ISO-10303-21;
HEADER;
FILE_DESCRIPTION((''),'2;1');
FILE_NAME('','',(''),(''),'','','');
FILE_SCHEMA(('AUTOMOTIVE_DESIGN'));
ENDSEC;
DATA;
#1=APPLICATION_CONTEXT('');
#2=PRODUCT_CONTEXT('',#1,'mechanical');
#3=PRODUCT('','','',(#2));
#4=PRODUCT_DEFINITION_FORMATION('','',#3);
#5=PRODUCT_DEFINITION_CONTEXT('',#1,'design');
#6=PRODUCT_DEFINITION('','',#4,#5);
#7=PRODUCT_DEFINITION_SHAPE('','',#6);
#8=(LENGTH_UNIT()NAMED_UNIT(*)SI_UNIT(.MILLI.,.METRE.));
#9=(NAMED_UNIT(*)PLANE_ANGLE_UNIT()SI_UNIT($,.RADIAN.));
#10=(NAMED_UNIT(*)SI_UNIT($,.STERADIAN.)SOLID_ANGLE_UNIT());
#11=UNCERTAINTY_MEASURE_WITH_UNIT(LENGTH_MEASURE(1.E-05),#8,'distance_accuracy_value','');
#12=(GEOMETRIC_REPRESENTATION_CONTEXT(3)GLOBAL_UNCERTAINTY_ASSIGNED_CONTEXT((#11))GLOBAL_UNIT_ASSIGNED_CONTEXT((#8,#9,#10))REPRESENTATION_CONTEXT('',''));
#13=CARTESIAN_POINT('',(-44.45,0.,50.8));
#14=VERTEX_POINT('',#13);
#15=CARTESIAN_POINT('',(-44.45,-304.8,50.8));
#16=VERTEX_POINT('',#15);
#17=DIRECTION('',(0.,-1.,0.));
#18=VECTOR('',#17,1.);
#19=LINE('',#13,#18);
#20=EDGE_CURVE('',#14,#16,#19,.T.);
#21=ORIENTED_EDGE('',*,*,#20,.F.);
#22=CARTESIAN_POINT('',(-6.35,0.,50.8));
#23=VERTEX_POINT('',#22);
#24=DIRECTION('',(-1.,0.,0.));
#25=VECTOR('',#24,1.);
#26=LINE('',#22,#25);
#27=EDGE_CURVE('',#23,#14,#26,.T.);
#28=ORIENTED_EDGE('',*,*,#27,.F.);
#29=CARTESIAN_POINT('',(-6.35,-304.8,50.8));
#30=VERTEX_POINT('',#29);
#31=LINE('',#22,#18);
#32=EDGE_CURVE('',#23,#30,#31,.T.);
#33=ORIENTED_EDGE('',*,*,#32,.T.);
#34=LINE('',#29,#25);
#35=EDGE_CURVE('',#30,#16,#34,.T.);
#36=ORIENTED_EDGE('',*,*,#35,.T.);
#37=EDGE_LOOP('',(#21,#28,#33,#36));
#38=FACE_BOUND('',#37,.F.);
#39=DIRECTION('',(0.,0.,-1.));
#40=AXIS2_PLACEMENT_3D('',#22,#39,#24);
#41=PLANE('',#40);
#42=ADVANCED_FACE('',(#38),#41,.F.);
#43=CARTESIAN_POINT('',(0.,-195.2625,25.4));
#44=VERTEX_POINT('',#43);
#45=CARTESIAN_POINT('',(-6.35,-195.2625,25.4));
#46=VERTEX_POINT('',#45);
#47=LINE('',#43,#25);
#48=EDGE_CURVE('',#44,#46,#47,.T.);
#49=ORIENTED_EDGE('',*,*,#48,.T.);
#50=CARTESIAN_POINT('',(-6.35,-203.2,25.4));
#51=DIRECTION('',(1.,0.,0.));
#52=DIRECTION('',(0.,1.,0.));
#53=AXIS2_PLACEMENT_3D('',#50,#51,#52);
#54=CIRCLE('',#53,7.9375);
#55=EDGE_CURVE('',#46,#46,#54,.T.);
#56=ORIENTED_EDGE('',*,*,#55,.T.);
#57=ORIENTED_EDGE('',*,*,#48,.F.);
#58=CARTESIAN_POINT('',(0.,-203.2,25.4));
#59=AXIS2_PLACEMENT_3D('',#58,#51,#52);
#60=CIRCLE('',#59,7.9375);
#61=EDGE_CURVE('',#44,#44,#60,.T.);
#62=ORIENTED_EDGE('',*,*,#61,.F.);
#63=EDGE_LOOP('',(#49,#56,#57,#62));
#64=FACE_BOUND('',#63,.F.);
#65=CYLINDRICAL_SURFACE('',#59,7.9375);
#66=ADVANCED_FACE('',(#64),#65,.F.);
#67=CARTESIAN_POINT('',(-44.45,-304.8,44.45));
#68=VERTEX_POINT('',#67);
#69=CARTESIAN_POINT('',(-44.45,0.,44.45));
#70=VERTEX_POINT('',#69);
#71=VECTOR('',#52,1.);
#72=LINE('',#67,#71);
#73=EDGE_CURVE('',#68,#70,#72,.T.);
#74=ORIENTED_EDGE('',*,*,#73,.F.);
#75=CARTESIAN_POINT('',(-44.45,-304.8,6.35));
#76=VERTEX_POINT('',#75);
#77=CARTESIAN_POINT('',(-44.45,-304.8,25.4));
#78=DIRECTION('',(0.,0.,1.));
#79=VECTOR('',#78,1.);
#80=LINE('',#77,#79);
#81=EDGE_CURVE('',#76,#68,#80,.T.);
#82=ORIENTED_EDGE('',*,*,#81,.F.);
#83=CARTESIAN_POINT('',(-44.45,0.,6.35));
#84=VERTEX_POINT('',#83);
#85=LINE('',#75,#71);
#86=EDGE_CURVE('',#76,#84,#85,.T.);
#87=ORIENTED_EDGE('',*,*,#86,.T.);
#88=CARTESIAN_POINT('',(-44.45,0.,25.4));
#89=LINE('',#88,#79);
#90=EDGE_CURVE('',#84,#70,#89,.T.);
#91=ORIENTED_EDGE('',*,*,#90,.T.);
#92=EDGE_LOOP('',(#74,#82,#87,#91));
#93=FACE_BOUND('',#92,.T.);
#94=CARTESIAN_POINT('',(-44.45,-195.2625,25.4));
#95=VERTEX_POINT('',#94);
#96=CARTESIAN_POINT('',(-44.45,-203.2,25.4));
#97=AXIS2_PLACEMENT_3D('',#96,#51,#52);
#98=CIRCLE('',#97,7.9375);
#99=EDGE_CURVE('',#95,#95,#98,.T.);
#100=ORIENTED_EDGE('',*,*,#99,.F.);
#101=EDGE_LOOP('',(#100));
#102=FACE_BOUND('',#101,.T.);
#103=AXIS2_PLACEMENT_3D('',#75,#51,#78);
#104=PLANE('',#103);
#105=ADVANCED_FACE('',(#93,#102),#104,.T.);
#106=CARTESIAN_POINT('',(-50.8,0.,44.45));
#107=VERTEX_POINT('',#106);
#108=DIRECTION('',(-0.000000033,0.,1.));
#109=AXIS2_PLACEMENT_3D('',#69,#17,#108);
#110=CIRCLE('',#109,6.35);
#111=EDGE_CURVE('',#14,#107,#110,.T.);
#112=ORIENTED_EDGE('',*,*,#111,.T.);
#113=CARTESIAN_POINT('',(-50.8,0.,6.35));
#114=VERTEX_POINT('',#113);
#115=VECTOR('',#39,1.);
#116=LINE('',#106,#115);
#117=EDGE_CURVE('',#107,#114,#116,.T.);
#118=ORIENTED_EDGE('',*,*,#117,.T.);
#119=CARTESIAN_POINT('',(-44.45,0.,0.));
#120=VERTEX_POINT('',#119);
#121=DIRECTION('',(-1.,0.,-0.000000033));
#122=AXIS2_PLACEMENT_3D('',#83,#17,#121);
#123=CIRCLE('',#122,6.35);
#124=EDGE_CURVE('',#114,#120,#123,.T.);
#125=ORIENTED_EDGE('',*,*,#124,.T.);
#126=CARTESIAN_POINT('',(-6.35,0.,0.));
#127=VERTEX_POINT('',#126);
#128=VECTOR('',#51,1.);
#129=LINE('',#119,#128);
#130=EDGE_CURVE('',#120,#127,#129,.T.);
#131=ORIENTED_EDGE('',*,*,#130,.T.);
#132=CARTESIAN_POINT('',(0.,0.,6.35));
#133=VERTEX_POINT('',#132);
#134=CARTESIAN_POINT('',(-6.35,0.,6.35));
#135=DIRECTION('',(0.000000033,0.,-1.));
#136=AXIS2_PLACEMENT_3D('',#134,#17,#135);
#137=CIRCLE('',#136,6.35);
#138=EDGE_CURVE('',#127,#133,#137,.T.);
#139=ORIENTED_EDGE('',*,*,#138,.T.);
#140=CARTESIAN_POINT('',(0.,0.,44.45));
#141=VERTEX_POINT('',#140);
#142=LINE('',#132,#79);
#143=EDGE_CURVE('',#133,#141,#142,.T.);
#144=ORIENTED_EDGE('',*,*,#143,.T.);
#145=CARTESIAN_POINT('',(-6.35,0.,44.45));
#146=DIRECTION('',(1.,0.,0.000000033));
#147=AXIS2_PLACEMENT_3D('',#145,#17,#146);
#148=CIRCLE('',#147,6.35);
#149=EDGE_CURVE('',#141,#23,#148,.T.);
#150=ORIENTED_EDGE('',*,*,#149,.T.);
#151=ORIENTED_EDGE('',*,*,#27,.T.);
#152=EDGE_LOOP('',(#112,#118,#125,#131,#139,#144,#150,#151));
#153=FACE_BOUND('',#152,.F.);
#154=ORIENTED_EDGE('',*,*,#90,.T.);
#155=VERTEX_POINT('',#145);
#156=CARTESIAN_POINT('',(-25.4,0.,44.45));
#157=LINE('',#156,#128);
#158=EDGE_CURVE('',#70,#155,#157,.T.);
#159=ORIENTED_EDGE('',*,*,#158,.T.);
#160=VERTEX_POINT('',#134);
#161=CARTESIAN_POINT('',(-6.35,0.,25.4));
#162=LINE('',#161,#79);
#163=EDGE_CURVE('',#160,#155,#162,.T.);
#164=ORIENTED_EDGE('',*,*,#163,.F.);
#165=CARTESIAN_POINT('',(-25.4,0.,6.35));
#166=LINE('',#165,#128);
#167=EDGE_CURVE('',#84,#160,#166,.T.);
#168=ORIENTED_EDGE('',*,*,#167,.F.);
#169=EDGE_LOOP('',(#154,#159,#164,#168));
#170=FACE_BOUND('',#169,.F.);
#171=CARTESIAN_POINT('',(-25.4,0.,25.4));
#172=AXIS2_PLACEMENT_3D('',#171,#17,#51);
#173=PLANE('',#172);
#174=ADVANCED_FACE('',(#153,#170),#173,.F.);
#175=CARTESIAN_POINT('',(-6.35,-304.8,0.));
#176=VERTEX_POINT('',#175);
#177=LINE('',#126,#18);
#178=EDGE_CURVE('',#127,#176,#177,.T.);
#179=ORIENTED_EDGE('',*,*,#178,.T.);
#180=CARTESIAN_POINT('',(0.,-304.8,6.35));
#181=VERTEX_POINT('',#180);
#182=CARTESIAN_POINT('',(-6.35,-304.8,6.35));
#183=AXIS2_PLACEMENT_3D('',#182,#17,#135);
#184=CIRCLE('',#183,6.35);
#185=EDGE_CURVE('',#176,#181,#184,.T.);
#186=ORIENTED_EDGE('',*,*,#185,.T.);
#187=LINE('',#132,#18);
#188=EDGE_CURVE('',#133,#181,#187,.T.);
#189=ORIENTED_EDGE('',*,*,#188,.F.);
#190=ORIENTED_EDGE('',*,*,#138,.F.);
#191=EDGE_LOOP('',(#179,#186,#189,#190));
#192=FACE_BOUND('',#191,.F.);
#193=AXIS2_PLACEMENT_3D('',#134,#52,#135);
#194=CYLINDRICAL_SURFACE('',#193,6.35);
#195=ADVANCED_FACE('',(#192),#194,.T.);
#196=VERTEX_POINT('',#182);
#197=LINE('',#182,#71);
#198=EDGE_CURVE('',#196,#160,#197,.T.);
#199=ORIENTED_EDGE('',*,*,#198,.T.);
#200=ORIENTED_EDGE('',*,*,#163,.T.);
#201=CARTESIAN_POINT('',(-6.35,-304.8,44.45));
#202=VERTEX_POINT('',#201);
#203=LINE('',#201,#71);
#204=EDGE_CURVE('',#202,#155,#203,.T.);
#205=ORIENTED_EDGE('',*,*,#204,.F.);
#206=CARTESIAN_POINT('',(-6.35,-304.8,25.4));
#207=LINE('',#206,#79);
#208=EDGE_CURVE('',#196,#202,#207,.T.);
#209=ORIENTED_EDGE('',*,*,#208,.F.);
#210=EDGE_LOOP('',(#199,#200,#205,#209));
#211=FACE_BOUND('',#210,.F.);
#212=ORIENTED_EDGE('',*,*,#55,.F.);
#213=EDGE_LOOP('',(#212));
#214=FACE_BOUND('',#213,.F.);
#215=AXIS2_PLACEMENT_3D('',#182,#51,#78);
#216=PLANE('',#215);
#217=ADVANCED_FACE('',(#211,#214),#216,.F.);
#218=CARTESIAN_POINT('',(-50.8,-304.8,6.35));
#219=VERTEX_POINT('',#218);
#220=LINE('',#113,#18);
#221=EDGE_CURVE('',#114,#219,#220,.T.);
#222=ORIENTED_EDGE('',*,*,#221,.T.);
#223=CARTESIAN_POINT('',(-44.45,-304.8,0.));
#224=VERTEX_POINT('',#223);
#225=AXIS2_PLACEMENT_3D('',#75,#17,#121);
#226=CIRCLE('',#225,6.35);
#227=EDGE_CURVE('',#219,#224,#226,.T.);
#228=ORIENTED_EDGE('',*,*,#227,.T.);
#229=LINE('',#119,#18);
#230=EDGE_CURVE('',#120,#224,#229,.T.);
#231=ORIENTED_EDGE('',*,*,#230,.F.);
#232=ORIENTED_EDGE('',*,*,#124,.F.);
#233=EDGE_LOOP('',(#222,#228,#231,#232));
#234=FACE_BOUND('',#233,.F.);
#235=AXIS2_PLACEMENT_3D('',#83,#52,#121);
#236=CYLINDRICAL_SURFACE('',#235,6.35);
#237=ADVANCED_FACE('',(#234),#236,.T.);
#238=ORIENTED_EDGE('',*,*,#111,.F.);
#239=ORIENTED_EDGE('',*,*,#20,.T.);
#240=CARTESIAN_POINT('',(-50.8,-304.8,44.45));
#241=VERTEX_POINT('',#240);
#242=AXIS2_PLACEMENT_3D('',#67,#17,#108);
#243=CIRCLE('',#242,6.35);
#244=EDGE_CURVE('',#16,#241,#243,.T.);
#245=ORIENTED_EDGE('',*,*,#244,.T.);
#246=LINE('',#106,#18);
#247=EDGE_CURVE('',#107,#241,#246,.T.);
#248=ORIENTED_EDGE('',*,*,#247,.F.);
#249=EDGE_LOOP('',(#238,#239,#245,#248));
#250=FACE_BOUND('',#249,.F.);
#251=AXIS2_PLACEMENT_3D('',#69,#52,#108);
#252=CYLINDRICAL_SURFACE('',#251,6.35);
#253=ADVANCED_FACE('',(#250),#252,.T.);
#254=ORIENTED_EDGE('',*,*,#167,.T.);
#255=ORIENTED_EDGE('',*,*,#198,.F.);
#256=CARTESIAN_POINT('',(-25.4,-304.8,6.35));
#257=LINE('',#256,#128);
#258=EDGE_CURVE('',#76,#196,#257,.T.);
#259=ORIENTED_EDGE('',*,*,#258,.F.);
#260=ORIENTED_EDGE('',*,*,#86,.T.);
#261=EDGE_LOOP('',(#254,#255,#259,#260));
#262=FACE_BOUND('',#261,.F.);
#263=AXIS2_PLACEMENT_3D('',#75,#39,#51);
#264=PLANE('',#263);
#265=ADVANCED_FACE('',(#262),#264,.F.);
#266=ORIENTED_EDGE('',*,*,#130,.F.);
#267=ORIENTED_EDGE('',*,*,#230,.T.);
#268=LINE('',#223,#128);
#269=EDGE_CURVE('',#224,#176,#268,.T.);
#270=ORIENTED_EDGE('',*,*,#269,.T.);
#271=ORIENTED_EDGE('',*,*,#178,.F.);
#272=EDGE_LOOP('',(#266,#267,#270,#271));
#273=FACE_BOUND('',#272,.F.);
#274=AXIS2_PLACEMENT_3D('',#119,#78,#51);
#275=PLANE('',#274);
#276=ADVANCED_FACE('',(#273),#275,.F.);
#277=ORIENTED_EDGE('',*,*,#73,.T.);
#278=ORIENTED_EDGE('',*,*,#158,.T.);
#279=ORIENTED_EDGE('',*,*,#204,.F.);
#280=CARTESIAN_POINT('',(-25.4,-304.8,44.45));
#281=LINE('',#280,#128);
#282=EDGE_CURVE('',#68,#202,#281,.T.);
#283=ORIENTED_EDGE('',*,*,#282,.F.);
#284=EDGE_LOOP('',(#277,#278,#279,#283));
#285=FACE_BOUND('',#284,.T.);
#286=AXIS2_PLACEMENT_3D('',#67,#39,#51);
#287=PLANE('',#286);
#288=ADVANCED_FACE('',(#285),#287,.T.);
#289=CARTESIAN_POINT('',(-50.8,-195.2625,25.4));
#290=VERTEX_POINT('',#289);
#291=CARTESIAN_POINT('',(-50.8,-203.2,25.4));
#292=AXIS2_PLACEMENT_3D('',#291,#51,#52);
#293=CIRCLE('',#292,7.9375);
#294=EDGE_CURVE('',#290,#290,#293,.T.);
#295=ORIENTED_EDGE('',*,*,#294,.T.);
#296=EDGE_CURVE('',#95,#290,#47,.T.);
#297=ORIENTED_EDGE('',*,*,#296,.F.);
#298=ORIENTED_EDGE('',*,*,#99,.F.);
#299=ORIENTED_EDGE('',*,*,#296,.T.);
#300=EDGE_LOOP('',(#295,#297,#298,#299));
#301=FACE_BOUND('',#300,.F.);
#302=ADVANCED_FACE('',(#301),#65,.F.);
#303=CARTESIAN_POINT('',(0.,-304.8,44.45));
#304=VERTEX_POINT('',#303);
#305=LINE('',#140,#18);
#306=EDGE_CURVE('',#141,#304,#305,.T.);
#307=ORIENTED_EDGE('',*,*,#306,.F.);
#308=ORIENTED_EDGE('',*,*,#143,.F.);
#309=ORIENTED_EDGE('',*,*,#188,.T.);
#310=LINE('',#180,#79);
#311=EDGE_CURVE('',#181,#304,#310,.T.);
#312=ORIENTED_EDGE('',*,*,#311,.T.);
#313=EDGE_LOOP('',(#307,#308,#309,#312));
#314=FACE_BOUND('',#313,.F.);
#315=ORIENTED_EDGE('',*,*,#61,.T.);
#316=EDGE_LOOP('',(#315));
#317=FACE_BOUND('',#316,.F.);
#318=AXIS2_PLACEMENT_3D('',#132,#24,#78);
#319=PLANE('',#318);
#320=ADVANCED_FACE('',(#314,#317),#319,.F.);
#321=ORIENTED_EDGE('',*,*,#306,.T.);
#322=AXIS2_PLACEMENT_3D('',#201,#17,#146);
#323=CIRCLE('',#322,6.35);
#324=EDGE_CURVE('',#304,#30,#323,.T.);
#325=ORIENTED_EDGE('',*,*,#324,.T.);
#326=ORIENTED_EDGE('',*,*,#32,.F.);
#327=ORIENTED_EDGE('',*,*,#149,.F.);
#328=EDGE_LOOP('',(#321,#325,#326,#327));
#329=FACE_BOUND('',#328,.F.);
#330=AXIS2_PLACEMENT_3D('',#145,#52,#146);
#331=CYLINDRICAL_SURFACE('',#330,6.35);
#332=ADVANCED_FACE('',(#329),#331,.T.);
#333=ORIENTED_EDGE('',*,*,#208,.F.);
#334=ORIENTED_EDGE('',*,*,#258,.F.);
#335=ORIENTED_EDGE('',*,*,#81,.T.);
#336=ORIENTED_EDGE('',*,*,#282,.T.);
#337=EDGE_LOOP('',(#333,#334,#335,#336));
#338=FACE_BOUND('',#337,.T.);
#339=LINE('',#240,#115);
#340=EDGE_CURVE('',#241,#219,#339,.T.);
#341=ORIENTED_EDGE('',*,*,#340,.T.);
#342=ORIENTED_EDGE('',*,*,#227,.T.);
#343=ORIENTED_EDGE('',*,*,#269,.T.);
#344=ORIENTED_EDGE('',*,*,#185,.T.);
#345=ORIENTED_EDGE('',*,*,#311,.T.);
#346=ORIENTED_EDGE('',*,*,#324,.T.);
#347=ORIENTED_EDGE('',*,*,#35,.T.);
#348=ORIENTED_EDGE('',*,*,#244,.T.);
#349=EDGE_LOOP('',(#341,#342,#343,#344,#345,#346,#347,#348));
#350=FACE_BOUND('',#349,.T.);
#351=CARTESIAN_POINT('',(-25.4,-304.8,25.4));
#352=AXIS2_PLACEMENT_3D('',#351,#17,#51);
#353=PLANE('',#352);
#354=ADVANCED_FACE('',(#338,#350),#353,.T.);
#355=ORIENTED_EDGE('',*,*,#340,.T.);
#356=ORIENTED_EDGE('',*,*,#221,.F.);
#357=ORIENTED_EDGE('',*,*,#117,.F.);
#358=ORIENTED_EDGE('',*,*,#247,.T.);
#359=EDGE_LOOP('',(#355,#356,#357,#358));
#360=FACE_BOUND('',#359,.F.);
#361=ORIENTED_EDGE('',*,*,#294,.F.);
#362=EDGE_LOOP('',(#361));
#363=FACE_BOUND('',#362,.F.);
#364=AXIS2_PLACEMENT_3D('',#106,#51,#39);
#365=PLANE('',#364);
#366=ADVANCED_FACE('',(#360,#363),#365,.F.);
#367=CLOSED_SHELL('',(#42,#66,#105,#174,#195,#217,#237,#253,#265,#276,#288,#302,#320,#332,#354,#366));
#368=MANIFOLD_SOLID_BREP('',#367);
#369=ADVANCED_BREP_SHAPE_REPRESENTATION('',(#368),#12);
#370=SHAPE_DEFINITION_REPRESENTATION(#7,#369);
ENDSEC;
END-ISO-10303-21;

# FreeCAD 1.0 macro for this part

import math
import FreeCAD as App
import Part
import Sketcher
Q = App.Units.Quantity


def add_polygon(sketch, points):
    """Adds a closed chain of lines whose ends are joined by coincident constraints."""
    first, n = sketch.GeometryCount, len(points)
    for a, b in zip(points, points[1:] + points[:1]):
        sketch.addGeometry(Part.LineSegment(App.Vector(*a, 0), App.Vector(*b, 0)), False)
    for i in range(n):
        sketch.addConstraint(Sketcher.Constraint("Coincident", first + i, 2, first + (i + 1) % n, 1))

doc = App.newDocument("Part")
params = doc.addObject("Spreadsheet::Sheet", "Params")
for row, (alias, value) in enumerate([
    ("sketch1_radius", "0.25 in"),
    ("sketch1_width", "1.5 in"),
    ("pad1_length", "12 in"),
    ("sketch2_width", "1.5 in"),
    ("pocket1_length", "12 in"),
    ("sketch3_diameter", "0.625 in"),
    ("pocket2_length", "2 in"),
], start=1):
    params.set(f"A{row}", alias)
    params.set(f"B{row}", "=" + value)
    params.setAlias(f"B{row}", alias)

body = doc.addObject("PartDesign::Body", "Body")

# Sketch on XZ plane
sketch1 = body.newObject("Sketcher::SketchObject", "Sketch")
sketch1.AttachmentSupport = (doc.getObject("XZ_Plane"), [""])
sketch1.MapMode = "FlatFace"
sketch1.addGeometry(Part.LineSegment(App.Vector(-44, 0, 0), App.Vector(-6, 0, 0)), False)
sketch1.addGeometry(Part.ArcOfCircle(Part.Circle(App.Vector(-6, 6, 0), App.Vector(0, 0, 1), 6), math.radians(-90), math.radians(0)), False)
sketch1.addGeometry(Part.LineSegment(App.Vector(0, 6, 0), App.Vector(0, 44, 0)), False)
sketch1.addGeometry(Part.ArcOfCircle(Part.Circle(App.Vector(-6, 44, 0), App.Vector(0, 0, 1), 6), math.radians(0), math.radians(90)), False)
sketch1.addGeometry(Part.LineSegment(App.Vector(-6, 51, 0), App.Vector(-44, 51, 0)), False)
sketch1.addGeometry(Part.ArcOfCircle(Part.Circle(App.Vector(-44, 44, 0), App.Vector(0, 0, 1), 6), math.radians(90), math.radians(180)), False)
sketch1.addGeometry(Part.LineSegment(App.Vector(-51, 44, 0), App.Vector(-51, 6, 0)), False)
sketch1.addGeometry(Part.ArcOfCircle(Part.Circle(App.Vector(-44, 6, 0), App.Vector(0, 0, 1), 6), math.radians(-180), math.radians(-90)), False)
sketch1.addConstraint(Sketcher.Constraint("Tangent", 0, 2, 1, 1))
sketch1.addConstraint(Sketcher.Constraint("Tangent", 1, 2, 2, 1))
sketch1.addConstraint(Sketcher.Constraint("Tangent", 2, 2, 3, 1))
sketch1.addConstraint(Sketcher.Constraint("Tangent", 3, 2, 4, 1))
sketch1.addConstraint(Sketcher.Constraint("Tangent", 4, 2, 5, 1))
sketch1.addConstraint(Sketcher.Constraint("Tangent", 5, 2, 6, 1))
sketch1.addConstraint(Sketcher.Constraint("Tangent", 6, 2, 7, 1))
sketch1.addConstraint(Sketcher.Constraint("Tangent", 7, 2, 0, 1))
sketch1.addConstraint(Sketcher.Constraint("Horizontal", 0))
sketch1.addConstraint(Sketcher.Constraint("Vertical", 2))
sketch1.addConstraint(Sketcher.Constraint("Horizontal", 4))
sketch1.addConstraint(Sketcher.Constraint("Vertical", 6))
sketch1.addConstraint(Sketcher.Constraint("Equal", 1, 3))
sketch1.addConstraint(Sketcher.Constraint("Equal", 3, 5))
sketch1.addConstraint(Sketcher.Constraint("Equal", 5, 7))
sketch1.addConstraint(Sketcher.Constraint("PointOnObject", 0, 2, -1))
sketch1.addConstraint(Sketcher.Constraint("PointOnObject", 1, 2, -2))
sketch1.addConstraint(Sketcher.Constraint("Equal", 4, 2))
sketch1.addConstraint(Sketcher.Constraint("Radius", 1, Q("0.25 in")))
sketch1.addConstraint(Sketcher.Constraint("DistanceX", 0, 1, 0, 2, Q("1.5 in")))
sketch1.setExpression("Constraints[18]", "Params.sketch1_radius")
sketch1.setExpression("Constraints[19]", "Params.sketch1_width")
pad1 = body.newObject("PartDesign::Pad", "Pad")
pad1.Profile = sketch1
pad1.setExpression("Length", "Params.pad1_length")

# Sketch on XZ plane
sketch2 = body.newObject("Sketcher::SketchObject", "Sketch001")
sketch2.AttachmentSupport = (doc.getObject("XZ_Plane"), [""])
sketch2.MapMode = "FlatFace"
sketch2.AttachmentOffset = App.Placement(App.Vector(0, 0, 12 * 25.4), App.Rotation())
add_polygon(sketch2, [(-44, 44), (-44, 6), (-6, 6), (-6, 44)])  # lines 0-3
sketch2.addConstraint(Sketcher.Constraint("Vertical", 0))
sketch2.addConstraint(Sketcher.Constraint("Horizontal", 1))
sketch2.addConstraint(Sketcher.Constraint("Vertical", 2))
sketch2.addConstraint(Sketcher.Constraint("Horizontal", 3))
sketch2.addConstraint(Sketcher.Constraint("Equal", 3, 0))
sketch2.addConstraint(Sketcher.Constraint("DistanceX", 1, 1, 1, 2, Q("1.5 in")))
sketch2.addConstraint(Sketcher.Constraint("DistanceX", 0, 2, -1, 1, Q("1.75 in")))
sketch2.addConstraint(Sketcher.Constraint("DistanceY", -1, 1, 0, 2, Q("0.25 in")))
sketch2.setExpression("Constraints[9]", "Params.sketch2_width")
pocket1 = body.newObject("PartDesign::Pocket", "Pocket")
pocket1.Profile = sketch2
pocket1.setExpression("Length", "Params.pocket1_length")

# Sketch on YZ plane
sketch3 = body.newObject("Sketcher::SketchObject", "Sketch002")
sketch3.AttachmentSupport = (doc.getObject("YZ_Plane"), [""])
sketch3.MapMode = "FlatFace"
sketch3.addGeometry(Part.Circle(App.Vector(-203, 25, 0), App.Vector(0, 0, 1), 8), False)
sketch3.addConstraint(Sketcher.Constraint("Diameter", 0, Q("0.625 in")))
sketch3.addConstraint(Sketcher.Constraint("DistanceX", 0, 3, -1, 1, Q("8 in")))
sketch3.addConstraint(Sketcher.Constraint("DistanceY", -1, 1, 0, 3, Q("1 in")))
sketch3.setExpression("Constraints[0]", "Params.sketch3_diameter")
pocket2 = body.newObject("PartDesign::Pocket", "Pocket001")
pocket2.Profile = sketch3
pocket2.setExpression("Length", "Params.pocket2_length")

doc.recompute()
